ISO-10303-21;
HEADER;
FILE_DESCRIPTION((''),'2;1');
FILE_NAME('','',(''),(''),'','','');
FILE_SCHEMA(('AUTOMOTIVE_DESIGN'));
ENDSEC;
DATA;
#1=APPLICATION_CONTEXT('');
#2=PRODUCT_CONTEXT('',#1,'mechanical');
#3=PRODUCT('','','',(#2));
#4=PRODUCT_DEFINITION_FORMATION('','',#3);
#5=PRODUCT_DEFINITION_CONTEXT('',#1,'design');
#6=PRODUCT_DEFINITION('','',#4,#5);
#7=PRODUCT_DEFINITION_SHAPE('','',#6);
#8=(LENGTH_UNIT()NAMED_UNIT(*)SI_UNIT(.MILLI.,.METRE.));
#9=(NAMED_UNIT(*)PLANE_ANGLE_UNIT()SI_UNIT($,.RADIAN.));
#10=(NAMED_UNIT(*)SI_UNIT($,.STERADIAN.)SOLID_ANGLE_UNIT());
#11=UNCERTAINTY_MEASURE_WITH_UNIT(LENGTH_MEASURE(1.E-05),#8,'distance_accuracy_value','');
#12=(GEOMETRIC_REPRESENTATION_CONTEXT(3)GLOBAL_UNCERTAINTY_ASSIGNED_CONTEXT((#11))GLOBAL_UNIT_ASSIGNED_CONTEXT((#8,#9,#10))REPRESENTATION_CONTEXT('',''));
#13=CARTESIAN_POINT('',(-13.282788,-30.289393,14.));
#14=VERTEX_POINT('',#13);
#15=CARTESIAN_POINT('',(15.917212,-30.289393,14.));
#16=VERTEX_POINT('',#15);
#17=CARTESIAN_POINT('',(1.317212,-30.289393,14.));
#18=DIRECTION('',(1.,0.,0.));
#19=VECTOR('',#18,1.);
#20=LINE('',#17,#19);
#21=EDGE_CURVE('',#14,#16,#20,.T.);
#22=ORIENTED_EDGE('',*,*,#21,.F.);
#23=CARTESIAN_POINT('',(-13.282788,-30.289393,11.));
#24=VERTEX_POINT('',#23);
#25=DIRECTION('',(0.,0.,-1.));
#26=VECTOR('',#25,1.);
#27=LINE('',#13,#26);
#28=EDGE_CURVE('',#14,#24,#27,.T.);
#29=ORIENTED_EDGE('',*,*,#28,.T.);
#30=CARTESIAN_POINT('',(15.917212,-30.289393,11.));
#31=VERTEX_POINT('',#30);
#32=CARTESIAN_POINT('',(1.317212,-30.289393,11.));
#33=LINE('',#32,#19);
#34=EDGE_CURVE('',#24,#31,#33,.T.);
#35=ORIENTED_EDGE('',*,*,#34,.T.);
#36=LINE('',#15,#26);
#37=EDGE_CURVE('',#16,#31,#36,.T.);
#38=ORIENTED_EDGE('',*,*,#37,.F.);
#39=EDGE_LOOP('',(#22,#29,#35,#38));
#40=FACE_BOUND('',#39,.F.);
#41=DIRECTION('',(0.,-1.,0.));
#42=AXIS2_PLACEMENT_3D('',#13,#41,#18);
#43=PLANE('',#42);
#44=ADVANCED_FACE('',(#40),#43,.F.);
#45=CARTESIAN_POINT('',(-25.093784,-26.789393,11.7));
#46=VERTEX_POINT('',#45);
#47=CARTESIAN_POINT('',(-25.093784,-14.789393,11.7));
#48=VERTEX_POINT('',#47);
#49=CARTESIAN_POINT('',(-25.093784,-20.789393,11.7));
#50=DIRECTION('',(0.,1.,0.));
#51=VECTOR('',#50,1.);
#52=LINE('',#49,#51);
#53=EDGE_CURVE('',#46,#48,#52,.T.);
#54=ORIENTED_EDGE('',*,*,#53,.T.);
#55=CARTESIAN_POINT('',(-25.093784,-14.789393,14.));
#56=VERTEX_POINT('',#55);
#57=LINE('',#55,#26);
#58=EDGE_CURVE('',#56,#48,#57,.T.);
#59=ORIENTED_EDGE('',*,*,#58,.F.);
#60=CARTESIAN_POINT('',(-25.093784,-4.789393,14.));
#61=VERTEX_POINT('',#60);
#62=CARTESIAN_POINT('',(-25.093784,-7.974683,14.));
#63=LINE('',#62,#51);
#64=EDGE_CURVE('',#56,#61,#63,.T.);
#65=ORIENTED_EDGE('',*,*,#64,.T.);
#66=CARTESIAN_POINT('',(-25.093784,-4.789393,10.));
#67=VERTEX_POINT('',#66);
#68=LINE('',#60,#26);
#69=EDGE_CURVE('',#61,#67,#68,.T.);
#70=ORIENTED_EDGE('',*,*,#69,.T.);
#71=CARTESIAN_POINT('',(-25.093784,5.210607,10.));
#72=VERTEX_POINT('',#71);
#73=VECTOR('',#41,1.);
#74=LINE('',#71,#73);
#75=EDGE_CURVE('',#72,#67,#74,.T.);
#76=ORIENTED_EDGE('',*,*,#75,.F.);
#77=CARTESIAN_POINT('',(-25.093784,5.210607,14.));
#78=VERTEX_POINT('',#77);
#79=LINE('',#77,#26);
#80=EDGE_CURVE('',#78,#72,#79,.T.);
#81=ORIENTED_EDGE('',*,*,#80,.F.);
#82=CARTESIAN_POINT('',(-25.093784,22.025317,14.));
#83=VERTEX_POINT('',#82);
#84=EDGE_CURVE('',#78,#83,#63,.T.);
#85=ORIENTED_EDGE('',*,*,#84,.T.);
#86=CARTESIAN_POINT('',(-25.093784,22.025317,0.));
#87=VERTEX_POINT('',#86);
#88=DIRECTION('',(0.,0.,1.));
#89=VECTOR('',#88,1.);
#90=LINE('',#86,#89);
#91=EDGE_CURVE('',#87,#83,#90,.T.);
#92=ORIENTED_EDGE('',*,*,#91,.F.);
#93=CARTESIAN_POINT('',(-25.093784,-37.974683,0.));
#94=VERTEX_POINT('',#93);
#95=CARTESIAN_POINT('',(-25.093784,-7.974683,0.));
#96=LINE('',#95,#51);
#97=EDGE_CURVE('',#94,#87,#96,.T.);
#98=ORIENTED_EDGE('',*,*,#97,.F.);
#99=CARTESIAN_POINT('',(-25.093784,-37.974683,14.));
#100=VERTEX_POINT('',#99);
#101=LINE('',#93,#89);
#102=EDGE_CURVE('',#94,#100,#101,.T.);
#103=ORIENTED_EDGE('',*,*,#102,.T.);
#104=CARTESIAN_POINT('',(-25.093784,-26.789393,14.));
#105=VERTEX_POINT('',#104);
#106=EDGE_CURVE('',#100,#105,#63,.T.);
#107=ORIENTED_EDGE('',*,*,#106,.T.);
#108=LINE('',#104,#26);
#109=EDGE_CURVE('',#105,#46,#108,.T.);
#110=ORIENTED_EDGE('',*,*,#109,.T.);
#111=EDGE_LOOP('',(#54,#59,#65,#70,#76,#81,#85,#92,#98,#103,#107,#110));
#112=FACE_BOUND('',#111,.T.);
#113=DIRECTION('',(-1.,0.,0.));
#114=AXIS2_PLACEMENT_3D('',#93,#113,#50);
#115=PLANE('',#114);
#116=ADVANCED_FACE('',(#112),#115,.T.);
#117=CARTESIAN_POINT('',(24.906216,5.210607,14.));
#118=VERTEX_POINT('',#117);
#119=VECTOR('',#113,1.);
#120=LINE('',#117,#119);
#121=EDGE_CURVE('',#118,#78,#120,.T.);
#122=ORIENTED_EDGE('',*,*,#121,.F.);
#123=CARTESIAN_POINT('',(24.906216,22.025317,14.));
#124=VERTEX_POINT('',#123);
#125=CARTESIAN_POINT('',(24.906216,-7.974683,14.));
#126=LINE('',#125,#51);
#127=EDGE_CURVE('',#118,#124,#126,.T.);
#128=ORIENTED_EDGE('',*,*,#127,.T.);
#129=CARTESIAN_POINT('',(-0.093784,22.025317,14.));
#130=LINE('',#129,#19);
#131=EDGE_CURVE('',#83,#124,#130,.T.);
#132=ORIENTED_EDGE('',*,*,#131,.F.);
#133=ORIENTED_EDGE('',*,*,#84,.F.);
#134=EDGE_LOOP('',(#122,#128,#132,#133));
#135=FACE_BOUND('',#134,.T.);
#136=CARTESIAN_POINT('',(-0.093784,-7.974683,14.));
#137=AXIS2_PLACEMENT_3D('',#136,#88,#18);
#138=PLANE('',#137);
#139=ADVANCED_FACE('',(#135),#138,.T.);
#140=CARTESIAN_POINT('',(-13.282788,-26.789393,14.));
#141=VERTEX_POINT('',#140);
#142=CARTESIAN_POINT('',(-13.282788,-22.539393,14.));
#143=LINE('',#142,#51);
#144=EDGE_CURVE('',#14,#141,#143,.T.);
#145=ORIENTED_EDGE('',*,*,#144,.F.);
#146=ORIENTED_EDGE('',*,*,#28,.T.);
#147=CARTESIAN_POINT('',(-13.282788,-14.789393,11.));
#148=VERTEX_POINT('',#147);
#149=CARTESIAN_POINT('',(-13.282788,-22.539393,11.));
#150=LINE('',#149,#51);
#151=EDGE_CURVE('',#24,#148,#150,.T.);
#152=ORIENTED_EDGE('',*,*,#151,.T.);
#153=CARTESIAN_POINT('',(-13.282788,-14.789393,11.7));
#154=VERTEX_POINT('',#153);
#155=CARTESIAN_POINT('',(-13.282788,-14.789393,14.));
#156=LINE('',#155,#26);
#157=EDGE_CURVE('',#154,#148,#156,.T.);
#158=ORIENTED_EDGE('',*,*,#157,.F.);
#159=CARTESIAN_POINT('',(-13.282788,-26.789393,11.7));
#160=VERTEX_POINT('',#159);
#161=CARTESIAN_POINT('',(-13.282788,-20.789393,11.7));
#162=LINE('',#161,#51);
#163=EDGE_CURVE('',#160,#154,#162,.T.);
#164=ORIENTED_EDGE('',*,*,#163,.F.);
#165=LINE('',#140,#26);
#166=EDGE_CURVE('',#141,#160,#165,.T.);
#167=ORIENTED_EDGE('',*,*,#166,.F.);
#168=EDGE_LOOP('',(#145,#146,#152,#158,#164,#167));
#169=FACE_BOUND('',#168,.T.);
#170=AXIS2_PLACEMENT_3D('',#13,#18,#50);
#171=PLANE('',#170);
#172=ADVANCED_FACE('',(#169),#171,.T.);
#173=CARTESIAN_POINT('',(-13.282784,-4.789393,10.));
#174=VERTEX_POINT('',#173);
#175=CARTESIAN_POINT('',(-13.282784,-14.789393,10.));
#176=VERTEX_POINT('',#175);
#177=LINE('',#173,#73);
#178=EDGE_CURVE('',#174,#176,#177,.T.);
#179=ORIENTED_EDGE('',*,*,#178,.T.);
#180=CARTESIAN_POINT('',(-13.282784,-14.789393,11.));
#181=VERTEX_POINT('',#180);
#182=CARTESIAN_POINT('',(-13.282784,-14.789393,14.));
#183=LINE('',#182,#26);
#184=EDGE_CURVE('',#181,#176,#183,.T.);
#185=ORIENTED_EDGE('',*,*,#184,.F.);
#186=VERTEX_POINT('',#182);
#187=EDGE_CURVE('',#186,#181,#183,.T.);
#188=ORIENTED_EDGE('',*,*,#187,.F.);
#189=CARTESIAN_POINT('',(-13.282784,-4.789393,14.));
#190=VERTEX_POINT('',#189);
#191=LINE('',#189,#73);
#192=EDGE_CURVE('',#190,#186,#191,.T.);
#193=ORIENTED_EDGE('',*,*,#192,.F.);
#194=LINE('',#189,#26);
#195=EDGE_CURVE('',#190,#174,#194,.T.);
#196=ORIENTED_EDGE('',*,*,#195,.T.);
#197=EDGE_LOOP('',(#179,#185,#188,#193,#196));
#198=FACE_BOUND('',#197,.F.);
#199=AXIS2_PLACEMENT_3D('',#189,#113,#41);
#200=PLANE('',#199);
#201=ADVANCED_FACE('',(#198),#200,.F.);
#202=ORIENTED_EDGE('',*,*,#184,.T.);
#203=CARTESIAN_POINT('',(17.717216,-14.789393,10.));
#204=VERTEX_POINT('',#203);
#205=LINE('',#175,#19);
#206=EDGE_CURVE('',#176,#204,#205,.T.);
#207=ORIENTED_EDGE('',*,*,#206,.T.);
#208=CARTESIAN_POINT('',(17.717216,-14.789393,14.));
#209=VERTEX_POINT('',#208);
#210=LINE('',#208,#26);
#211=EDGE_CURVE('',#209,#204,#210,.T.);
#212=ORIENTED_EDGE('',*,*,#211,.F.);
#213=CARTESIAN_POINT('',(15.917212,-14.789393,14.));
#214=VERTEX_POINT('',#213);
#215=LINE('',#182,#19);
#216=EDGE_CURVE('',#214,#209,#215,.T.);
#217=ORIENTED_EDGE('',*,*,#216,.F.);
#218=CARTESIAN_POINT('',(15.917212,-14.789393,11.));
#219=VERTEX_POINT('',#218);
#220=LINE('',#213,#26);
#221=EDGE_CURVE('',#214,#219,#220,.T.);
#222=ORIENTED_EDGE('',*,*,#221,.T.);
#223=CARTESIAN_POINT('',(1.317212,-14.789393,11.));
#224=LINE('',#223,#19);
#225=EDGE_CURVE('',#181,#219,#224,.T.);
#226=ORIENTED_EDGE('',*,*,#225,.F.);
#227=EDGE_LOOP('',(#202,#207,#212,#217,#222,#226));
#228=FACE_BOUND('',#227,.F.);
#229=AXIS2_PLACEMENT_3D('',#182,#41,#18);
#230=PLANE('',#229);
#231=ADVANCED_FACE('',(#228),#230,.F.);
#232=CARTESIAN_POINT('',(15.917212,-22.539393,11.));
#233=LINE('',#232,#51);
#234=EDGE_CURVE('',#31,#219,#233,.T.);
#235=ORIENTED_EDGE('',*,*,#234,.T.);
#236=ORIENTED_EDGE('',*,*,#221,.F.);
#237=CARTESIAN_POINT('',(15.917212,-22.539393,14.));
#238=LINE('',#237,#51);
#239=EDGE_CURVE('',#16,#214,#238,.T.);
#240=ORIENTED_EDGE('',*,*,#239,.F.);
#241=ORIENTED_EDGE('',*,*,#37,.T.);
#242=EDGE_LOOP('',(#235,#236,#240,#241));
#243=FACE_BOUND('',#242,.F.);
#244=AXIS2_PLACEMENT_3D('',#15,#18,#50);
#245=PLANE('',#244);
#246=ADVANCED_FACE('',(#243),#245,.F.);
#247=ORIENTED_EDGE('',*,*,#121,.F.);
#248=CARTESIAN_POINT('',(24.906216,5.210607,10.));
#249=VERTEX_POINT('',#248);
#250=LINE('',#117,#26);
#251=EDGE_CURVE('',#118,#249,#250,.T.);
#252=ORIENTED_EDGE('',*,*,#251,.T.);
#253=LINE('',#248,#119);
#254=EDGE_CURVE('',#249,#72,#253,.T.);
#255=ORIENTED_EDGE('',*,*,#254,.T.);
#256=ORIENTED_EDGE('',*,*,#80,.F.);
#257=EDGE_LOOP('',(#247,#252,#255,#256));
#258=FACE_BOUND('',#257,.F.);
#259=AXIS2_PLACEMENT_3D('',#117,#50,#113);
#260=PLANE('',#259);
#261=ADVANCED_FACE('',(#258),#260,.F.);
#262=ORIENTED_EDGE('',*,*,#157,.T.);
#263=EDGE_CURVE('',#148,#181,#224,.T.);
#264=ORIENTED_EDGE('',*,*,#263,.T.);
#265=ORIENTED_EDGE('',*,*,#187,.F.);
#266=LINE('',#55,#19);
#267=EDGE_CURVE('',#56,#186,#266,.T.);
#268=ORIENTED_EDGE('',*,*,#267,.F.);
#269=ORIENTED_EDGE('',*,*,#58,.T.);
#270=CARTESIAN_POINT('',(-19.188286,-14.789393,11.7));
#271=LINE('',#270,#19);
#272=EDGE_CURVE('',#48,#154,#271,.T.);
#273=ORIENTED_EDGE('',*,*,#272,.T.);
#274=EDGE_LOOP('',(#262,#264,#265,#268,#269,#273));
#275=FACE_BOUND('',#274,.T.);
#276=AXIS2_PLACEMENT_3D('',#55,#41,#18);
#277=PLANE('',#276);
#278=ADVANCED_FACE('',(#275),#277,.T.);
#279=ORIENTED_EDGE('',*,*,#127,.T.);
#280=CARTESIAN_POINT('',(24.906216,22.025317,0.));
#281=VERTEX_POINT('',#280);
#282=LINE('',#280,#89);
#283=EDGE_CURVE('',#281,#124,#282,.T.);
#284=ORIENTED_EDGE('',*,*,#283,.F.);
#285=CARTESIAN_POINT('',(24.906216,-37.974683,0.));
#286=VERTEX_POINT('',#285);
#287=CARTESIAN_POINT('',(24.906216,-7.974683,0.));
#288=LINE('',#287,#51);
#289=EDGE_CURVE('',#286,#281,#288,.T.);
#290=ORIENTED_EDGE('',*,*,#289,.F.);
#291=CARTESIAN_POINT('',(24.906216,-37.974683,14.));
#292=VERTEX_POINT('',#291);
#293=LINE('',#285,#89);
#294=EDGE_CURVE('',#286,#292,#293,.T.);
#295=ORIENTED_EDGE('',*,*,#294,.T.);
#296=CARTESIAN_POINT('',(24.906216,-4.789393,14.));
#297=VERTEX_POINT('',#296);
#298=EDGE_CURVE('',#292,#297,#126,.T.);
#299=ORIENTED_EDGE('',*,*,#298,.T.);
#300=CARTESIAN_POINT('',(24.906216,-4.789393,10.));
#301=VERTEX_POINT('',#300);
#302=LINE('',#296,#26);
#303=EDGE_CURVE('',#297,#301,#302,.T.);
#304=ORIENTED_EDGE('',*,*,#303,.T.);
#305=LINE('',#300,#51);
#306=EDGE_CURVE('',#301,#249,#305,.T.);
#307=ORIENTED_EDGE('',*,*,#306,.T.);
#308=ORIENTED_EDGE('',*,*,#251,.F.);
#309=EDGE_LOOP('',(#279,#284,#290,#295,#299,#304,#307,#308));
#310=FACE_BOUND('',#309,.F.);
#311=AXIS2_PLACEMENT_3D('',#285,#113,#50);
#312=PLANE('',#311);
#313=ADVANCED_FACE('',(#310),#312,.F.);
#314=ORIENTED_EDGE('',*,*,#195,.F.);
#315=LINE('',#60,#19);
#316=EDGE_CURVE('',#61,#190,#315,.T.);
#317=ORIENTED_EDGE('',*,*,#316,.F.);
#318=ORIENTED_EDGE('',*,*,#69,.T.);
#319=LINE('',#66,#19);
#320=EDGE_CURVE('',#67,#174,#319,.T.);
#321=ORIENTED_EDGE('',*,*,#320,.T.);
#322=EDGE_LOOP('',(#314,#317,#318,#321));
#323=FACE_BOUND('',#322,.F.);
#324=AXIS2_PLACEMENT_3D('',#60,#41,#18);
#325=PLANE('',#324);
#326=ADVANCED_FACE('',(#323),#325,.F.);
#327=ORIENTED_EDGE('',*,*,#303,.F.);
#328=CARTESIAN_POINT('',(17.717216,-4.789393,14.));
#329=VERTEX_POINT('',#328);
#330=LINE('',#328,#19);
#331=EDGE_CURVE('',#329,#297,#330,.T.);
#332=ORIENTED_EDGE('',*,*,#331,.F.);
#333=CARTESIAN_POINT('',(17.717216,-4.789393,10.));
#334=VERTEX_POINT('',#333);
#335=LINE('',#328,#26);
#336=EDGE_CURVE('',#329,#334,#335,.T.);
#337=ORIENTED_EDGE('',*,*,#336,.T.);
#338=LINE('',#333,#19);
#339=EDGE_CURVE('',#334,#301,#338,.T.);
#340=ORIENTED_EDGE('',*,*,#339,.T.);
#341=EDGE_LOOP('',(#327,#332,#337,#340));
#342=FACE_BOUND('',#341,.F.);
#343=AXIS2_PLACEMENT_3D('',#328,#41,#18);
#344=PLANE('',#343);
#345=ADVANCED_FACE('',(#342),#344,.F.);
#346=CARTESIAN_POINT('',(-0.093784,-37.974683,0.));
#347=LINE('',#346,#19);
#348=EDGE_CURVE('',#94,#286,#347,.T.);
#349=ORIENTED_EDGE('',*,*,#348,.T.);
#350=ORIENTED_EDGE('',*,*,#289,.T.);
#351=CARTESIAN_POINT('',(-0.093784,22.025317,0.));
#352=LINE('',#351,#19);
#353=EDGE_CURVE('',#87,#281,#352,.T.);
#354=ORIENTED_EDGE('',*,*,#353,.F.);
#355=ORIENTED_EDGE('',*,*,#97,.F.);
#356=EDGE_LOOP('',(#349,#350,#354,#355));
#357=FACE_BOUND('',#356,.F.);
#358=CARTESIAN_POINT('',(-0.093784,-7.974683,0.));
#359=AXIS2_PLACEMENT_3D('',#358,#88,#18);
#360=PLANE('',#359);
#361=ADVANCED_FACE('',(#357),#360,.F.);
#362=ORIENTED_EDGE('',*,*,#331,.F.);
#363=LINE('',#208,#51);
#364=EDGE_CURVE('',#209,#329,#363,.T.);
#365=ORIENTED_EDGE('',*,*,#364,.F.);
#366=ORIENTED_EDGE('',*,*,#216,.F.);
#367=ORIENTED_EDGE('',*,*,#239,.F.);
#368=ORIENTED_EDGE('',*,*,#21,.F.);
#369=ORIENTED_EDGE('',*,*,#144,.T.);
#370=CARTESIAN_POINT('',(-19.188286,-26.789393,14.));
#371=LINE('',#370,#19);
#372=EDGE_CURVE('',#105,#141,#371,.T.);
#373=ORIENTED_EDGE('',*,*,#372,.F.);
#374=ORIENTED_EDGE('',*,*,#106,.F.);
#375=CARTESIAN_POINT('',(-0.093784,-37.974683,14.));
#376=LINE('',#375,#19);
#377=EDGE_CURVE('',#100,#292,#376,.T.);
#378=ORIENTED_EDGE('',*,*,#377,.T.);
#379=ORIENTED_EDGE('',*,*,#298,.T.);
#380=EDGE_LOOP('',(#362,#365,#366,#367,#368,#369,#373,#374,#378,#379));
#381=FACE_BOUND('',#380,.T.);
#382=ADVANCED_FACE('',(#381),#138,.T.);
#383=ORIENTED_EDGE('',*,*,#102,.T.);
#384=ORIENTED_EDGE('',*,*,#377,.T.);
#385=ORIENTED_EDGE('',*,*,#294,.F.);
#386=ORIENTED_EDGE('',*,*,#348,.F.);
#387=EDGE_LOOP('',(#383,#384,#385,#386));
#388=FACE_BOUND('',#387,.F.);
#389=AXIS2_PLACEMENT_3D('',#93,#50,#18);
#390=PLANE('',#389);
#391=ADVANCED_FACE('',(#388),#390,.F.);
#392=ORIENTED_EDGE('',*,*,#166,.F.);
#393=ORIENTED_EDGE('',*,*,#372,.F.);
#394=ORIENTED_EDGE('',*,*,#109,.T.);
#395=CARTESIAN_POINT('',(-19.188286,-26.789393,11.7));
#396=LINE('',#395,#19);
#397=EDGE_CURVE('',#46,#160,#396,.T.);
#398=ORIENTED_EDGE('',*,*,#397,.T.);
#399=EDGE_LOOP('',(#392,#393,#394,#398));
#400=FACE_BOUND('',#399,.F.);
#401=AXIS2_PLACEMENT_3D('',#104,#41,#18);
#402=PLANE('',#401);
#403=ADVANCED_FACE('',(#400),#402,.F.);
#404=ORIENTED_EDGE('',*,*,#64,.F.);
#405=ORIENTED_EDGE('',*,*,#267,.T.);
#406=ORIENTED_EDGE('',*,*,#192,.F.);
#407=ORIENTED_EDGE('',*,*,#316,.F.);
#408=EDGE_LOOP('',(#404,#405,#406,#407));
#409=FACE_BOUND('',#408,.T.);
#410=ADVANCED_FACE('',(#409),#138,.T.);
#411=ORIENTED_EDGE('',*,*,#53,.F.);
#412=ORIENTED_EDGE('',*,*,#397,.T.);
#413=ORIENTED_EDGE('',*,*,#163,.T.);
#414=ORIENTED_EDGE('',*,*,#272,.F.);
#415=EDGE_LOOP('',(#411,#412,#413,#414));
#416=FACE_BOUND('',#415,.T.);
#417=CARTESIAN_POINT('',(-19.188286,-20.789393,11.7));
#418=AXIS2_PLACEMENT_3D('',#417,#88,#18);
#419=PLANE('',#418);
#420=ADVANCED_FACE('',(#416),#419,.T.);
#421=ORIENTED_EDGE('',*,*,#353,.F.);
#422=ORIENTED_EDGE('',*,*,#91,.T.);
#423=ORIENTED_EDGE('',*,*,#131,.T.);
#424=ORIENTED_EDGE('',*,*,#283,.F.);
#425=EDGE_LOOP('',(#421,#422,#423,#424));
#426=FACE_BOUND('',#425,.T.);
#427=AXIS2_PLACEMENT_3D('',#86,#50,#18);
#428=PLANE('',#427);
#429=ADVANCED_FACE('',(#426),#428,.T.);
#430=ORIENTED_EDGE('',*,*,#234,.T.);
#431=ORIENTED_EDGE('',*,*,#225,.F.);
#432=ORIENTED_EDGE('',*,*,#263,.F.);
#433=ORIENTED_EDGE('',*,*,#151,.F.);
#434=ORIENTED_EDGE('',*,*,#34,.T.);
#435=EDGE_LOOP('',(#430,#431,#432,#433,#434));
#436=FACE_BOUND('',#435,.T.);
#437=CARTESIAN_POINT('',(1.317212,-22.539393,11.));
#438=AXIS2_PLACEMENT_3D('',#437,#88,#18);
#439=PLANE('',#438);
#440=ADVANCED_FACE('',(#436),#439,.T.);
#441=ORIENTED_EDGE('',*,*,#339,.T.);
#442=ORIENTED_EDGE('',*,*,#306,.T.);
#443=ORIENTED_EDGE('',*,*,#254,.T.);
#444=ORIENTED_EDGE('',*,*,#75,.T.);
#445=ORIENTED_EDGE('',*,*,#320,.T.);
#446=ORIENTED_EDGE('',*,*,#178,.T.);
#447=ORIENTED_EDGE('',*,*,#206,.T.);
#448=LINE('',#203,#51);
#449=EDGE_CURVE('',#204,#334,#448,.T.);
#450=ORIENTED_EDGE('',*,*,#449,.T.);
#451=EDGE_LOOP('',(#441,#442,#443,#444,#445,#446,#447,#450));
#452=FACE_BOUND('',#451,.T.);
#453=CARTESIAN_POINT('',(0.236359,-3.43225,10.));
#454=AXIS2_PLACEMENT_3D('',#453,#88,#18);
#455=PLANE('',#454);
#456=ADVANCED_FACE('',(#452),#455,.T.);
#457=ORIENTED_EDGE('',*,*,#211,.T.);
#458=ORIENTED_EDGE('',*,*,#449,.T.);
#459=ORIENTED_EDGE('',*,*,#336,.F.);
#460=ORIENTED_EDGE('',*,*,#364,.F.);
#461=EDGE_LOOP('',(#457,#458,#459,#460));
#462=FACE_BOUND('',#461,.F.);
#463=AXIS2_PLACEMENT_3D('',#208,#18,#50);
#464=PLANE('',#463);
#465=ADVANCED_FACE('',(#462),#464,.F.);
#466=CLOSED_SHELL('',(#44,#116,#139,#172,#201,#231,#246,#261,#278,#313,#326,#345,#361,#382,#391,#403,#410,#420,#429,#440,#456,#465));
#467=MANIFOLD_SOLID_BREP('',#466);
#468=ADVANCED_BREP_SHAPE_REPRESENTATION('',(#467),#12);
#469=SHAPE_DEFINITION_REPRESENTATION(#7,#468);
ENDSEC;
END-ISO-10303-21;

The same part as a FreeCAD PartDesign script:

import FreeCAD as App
import Part
import Sketcher
from FreeCAD import Vector


def add_polygon(sketch, points):
    """Adds a closed chain of lines whose ends are joined by coincident constraints."""
    first, n = sketch.GeometryCount, len(points)
    for a, b in zip(points, points[1:] + points[:1]):
        sketch.addGeometry(Part.LineSegment(App.Vector(*a, 0), App.Vector(*b, 0)), False)
    for i in range(n):
        sketch.addConstraint(Sketcher.Constraint("Coincident", first + i, 2, first + (i + 1) % n, 1))

doc = App.newDocument("Part")
body = doc.addObject("PartDesign::Body", "Body")

# Sketch on XY plane
sketch1 = doc.addObject("Sketcher::SketchObject", "Sketch")
body.addObject(sketch1)
sketch1.AttachmentSupport = (doc.XY_Plane, [""])
sketch1.MapMode = "FlatFace"
add_polygon(sketch1, [(-25.093784, 22.025317), (-25.093784, -37.974683), (24.906216, -37.974683), (24.906216, 22.025317)])  # lines 0-3
sketch1.addConstraint([
    Sketcher.Constraint("Vertical", 0),
    Sketcher.Constraint("Horizontal", 1),
    Sketcher.Constraint("Vertical", 2),
    Sketcher.Constraint("Horizontal", 3),
    Sketcher.Constraint("DistanceX", 1, 1, 1, 2, 50.0),
    Sketcher.Constraint("DistanceY", 0, 2, 0, 1, 60.0),
    Sketcher.Constraint("DistanceX", 0, 2, -1, 1, 25.093784),
    Sketcher.Constraint("DistanceY", 0, 2, -1, 1, 37.974683),
])
pad1 = doc.addObject("PartDesign::Pad", "Pad")
body.addObject(pad1)
pad1.Profile = sketch1
pad1.Length = 14

# Sketch on XY plane
sketch2 = doc.addObject("Sketcher::SketchObject", "Sketch001")
body.addObject(sketch2)
sketch2.AttachmentSupport = (doc.XY_Plane, [""])
sketch2.MapMode = "FlatFace"
sketch2.AttachmentOffset = App.Placement(Vector(0, 0, 14), App.Rotation())
add_polygon(sketch2, [(-13.282788, -14.789393), (-13.282788, -30.289393), (15.917212, -30.289393), (15.917212, -14.789393)])  # lines 0-3
sketch2.addConstraint([
    Sketcher.Constraint("Vertical", 0),
    Sketcher.Constraint("Horizontal", 1),
    Sketcher.Constraint("Vertical", 2),
    Sketcher.Constraint("Horizontal", 3),
    Sketcher.Constraint("DistanceX", 1, 1, 1, 2, 29.2),
    Sketcher.Constraint("DistanceY", 0, 2, 0, 1, 15.5),
    Sketcher.Constraint("DistanceX", -1, 1, 1, 2, 15.917212),
    Sketcher.Constraint("DistanceY", 0, 2, -1, 1, 30.289393),
])
pocket1 = doc.addObject("PartDesign::Pocket", "Pocket")
body.addObject(pocket1)
pocket1.Profile = sketch2
pocket1.Length = 3

# Sketch on XY plane
sketch3 = doc.addObject("Sketcher::SketchObject", "Sketch002")
body.addObject(sketch3)
sketch3.AttachmentSupport = (doc.XY_Plane, [""])
sketch3.MapMode = "FlatFace"
sketch3.AttachmentOffset = App.Placement(Vector(0, 0, 14), App.Rotation())
add_polygon(sketch3, [(-25.093784, -14.789393), (-25.093784, -26.789393), (-13.282788, -26.789393), (-13.282788, -14.789393)])  # lines 0-3
sketch3.addConstraint([
    Sketcher.Constraint("Vertical", 0),
    Sketcher.Constraint("Horizontal", 1),
    Sketcher.Constraint("Vertical", 2),
    Sketcher.Constraint("Horizontal", 3),
    Sketcher.Constraint("DistanceY", 0, 2, 0, 1, 12.0),
    Sketcher.Constraint("DistanceX", 1, 1, 1, 2, 11.810996),
    Sketcher.Constraint("DistanceX", 0, 2, -1, 1, 25.093784),
    Sketcher.Constraint("DistanceY", 0, 2, -1, 1, 26.789393),
])
pocket2 = doc.addObject("PartDesign::Pocket", "Pocket001")
body.addObject(pocket2)
pocket2.Profile = sketch3
pocket2.Length = 2.3

# Sketch on XY plane
sketch4 = doc.addObject("Sketcher::SketchObject", "Sketch003")
body.addObject(sketch4)
sketch4.AttachmentSupport = (doc.XY_Plane, [""])
sketch4.MapMode = "FlatFace"
sketch4.AttachmentOffset = App.Placement(Vector(0, 0, 14), App.Rotation())
add_polygon(sketch4, [(-13.282784, -4.789393), (-13.282784, -14.789393), (17.717216, -14.789393), (17.717216, -4.789393), (24.906216, -4.789393), (24.906216, 5.210607), (-25.093784, 5.210607), (-25.093784, -4.789393)])  # lines 0-7
sketch4.addConstraint([
    Sketcher.Constraint("Vertical", 0),
    Sketcher.Constraint("Horizontal", 1),
    Sketcher.Constraint("Vertical", 2),
    Sketcher.Constraint("Horizontal", 3),
    Sketcher.Constraint("Vertical", 4),
    Sketcher.Constraint("Horizontal", 5),
    Sketcher.Constraint("Vertical", 6),
    Sketcher.Constraint("Horizontal", 7),
    Sketcher.Constraint("Horizontal", 3, 2, 6, 2),
    Sketcher.Constraint("Equal", 2, 4),
    Sketcher.Constraint("DistanceX", 1, 1, 1, 2, 31.0),
    Sketcher.Constraint("DistanceX", 5, 2, 5, 1, 50.0),
    Sketcher.Constraint("DistanceY", 0, 2, 0, 1, 10.0),
    Sketcher.Constraint("DistanceX", 3, 1, 3, 2, 7.189),
    Sketcher.Constraint("DistanceX", 0, 2, -1, 1, 13.282784),
    Sketcher.Constraint("DistanceY", 0, 2, -1, 1, 14.789393),
])
pocket3 = doc.addObject("PartDesign::Pocket", "Pocket002")
body.addObject(pocket3)
pocket3.Profile = sketch4
pocket3.Length = 4

doc.recompute()
